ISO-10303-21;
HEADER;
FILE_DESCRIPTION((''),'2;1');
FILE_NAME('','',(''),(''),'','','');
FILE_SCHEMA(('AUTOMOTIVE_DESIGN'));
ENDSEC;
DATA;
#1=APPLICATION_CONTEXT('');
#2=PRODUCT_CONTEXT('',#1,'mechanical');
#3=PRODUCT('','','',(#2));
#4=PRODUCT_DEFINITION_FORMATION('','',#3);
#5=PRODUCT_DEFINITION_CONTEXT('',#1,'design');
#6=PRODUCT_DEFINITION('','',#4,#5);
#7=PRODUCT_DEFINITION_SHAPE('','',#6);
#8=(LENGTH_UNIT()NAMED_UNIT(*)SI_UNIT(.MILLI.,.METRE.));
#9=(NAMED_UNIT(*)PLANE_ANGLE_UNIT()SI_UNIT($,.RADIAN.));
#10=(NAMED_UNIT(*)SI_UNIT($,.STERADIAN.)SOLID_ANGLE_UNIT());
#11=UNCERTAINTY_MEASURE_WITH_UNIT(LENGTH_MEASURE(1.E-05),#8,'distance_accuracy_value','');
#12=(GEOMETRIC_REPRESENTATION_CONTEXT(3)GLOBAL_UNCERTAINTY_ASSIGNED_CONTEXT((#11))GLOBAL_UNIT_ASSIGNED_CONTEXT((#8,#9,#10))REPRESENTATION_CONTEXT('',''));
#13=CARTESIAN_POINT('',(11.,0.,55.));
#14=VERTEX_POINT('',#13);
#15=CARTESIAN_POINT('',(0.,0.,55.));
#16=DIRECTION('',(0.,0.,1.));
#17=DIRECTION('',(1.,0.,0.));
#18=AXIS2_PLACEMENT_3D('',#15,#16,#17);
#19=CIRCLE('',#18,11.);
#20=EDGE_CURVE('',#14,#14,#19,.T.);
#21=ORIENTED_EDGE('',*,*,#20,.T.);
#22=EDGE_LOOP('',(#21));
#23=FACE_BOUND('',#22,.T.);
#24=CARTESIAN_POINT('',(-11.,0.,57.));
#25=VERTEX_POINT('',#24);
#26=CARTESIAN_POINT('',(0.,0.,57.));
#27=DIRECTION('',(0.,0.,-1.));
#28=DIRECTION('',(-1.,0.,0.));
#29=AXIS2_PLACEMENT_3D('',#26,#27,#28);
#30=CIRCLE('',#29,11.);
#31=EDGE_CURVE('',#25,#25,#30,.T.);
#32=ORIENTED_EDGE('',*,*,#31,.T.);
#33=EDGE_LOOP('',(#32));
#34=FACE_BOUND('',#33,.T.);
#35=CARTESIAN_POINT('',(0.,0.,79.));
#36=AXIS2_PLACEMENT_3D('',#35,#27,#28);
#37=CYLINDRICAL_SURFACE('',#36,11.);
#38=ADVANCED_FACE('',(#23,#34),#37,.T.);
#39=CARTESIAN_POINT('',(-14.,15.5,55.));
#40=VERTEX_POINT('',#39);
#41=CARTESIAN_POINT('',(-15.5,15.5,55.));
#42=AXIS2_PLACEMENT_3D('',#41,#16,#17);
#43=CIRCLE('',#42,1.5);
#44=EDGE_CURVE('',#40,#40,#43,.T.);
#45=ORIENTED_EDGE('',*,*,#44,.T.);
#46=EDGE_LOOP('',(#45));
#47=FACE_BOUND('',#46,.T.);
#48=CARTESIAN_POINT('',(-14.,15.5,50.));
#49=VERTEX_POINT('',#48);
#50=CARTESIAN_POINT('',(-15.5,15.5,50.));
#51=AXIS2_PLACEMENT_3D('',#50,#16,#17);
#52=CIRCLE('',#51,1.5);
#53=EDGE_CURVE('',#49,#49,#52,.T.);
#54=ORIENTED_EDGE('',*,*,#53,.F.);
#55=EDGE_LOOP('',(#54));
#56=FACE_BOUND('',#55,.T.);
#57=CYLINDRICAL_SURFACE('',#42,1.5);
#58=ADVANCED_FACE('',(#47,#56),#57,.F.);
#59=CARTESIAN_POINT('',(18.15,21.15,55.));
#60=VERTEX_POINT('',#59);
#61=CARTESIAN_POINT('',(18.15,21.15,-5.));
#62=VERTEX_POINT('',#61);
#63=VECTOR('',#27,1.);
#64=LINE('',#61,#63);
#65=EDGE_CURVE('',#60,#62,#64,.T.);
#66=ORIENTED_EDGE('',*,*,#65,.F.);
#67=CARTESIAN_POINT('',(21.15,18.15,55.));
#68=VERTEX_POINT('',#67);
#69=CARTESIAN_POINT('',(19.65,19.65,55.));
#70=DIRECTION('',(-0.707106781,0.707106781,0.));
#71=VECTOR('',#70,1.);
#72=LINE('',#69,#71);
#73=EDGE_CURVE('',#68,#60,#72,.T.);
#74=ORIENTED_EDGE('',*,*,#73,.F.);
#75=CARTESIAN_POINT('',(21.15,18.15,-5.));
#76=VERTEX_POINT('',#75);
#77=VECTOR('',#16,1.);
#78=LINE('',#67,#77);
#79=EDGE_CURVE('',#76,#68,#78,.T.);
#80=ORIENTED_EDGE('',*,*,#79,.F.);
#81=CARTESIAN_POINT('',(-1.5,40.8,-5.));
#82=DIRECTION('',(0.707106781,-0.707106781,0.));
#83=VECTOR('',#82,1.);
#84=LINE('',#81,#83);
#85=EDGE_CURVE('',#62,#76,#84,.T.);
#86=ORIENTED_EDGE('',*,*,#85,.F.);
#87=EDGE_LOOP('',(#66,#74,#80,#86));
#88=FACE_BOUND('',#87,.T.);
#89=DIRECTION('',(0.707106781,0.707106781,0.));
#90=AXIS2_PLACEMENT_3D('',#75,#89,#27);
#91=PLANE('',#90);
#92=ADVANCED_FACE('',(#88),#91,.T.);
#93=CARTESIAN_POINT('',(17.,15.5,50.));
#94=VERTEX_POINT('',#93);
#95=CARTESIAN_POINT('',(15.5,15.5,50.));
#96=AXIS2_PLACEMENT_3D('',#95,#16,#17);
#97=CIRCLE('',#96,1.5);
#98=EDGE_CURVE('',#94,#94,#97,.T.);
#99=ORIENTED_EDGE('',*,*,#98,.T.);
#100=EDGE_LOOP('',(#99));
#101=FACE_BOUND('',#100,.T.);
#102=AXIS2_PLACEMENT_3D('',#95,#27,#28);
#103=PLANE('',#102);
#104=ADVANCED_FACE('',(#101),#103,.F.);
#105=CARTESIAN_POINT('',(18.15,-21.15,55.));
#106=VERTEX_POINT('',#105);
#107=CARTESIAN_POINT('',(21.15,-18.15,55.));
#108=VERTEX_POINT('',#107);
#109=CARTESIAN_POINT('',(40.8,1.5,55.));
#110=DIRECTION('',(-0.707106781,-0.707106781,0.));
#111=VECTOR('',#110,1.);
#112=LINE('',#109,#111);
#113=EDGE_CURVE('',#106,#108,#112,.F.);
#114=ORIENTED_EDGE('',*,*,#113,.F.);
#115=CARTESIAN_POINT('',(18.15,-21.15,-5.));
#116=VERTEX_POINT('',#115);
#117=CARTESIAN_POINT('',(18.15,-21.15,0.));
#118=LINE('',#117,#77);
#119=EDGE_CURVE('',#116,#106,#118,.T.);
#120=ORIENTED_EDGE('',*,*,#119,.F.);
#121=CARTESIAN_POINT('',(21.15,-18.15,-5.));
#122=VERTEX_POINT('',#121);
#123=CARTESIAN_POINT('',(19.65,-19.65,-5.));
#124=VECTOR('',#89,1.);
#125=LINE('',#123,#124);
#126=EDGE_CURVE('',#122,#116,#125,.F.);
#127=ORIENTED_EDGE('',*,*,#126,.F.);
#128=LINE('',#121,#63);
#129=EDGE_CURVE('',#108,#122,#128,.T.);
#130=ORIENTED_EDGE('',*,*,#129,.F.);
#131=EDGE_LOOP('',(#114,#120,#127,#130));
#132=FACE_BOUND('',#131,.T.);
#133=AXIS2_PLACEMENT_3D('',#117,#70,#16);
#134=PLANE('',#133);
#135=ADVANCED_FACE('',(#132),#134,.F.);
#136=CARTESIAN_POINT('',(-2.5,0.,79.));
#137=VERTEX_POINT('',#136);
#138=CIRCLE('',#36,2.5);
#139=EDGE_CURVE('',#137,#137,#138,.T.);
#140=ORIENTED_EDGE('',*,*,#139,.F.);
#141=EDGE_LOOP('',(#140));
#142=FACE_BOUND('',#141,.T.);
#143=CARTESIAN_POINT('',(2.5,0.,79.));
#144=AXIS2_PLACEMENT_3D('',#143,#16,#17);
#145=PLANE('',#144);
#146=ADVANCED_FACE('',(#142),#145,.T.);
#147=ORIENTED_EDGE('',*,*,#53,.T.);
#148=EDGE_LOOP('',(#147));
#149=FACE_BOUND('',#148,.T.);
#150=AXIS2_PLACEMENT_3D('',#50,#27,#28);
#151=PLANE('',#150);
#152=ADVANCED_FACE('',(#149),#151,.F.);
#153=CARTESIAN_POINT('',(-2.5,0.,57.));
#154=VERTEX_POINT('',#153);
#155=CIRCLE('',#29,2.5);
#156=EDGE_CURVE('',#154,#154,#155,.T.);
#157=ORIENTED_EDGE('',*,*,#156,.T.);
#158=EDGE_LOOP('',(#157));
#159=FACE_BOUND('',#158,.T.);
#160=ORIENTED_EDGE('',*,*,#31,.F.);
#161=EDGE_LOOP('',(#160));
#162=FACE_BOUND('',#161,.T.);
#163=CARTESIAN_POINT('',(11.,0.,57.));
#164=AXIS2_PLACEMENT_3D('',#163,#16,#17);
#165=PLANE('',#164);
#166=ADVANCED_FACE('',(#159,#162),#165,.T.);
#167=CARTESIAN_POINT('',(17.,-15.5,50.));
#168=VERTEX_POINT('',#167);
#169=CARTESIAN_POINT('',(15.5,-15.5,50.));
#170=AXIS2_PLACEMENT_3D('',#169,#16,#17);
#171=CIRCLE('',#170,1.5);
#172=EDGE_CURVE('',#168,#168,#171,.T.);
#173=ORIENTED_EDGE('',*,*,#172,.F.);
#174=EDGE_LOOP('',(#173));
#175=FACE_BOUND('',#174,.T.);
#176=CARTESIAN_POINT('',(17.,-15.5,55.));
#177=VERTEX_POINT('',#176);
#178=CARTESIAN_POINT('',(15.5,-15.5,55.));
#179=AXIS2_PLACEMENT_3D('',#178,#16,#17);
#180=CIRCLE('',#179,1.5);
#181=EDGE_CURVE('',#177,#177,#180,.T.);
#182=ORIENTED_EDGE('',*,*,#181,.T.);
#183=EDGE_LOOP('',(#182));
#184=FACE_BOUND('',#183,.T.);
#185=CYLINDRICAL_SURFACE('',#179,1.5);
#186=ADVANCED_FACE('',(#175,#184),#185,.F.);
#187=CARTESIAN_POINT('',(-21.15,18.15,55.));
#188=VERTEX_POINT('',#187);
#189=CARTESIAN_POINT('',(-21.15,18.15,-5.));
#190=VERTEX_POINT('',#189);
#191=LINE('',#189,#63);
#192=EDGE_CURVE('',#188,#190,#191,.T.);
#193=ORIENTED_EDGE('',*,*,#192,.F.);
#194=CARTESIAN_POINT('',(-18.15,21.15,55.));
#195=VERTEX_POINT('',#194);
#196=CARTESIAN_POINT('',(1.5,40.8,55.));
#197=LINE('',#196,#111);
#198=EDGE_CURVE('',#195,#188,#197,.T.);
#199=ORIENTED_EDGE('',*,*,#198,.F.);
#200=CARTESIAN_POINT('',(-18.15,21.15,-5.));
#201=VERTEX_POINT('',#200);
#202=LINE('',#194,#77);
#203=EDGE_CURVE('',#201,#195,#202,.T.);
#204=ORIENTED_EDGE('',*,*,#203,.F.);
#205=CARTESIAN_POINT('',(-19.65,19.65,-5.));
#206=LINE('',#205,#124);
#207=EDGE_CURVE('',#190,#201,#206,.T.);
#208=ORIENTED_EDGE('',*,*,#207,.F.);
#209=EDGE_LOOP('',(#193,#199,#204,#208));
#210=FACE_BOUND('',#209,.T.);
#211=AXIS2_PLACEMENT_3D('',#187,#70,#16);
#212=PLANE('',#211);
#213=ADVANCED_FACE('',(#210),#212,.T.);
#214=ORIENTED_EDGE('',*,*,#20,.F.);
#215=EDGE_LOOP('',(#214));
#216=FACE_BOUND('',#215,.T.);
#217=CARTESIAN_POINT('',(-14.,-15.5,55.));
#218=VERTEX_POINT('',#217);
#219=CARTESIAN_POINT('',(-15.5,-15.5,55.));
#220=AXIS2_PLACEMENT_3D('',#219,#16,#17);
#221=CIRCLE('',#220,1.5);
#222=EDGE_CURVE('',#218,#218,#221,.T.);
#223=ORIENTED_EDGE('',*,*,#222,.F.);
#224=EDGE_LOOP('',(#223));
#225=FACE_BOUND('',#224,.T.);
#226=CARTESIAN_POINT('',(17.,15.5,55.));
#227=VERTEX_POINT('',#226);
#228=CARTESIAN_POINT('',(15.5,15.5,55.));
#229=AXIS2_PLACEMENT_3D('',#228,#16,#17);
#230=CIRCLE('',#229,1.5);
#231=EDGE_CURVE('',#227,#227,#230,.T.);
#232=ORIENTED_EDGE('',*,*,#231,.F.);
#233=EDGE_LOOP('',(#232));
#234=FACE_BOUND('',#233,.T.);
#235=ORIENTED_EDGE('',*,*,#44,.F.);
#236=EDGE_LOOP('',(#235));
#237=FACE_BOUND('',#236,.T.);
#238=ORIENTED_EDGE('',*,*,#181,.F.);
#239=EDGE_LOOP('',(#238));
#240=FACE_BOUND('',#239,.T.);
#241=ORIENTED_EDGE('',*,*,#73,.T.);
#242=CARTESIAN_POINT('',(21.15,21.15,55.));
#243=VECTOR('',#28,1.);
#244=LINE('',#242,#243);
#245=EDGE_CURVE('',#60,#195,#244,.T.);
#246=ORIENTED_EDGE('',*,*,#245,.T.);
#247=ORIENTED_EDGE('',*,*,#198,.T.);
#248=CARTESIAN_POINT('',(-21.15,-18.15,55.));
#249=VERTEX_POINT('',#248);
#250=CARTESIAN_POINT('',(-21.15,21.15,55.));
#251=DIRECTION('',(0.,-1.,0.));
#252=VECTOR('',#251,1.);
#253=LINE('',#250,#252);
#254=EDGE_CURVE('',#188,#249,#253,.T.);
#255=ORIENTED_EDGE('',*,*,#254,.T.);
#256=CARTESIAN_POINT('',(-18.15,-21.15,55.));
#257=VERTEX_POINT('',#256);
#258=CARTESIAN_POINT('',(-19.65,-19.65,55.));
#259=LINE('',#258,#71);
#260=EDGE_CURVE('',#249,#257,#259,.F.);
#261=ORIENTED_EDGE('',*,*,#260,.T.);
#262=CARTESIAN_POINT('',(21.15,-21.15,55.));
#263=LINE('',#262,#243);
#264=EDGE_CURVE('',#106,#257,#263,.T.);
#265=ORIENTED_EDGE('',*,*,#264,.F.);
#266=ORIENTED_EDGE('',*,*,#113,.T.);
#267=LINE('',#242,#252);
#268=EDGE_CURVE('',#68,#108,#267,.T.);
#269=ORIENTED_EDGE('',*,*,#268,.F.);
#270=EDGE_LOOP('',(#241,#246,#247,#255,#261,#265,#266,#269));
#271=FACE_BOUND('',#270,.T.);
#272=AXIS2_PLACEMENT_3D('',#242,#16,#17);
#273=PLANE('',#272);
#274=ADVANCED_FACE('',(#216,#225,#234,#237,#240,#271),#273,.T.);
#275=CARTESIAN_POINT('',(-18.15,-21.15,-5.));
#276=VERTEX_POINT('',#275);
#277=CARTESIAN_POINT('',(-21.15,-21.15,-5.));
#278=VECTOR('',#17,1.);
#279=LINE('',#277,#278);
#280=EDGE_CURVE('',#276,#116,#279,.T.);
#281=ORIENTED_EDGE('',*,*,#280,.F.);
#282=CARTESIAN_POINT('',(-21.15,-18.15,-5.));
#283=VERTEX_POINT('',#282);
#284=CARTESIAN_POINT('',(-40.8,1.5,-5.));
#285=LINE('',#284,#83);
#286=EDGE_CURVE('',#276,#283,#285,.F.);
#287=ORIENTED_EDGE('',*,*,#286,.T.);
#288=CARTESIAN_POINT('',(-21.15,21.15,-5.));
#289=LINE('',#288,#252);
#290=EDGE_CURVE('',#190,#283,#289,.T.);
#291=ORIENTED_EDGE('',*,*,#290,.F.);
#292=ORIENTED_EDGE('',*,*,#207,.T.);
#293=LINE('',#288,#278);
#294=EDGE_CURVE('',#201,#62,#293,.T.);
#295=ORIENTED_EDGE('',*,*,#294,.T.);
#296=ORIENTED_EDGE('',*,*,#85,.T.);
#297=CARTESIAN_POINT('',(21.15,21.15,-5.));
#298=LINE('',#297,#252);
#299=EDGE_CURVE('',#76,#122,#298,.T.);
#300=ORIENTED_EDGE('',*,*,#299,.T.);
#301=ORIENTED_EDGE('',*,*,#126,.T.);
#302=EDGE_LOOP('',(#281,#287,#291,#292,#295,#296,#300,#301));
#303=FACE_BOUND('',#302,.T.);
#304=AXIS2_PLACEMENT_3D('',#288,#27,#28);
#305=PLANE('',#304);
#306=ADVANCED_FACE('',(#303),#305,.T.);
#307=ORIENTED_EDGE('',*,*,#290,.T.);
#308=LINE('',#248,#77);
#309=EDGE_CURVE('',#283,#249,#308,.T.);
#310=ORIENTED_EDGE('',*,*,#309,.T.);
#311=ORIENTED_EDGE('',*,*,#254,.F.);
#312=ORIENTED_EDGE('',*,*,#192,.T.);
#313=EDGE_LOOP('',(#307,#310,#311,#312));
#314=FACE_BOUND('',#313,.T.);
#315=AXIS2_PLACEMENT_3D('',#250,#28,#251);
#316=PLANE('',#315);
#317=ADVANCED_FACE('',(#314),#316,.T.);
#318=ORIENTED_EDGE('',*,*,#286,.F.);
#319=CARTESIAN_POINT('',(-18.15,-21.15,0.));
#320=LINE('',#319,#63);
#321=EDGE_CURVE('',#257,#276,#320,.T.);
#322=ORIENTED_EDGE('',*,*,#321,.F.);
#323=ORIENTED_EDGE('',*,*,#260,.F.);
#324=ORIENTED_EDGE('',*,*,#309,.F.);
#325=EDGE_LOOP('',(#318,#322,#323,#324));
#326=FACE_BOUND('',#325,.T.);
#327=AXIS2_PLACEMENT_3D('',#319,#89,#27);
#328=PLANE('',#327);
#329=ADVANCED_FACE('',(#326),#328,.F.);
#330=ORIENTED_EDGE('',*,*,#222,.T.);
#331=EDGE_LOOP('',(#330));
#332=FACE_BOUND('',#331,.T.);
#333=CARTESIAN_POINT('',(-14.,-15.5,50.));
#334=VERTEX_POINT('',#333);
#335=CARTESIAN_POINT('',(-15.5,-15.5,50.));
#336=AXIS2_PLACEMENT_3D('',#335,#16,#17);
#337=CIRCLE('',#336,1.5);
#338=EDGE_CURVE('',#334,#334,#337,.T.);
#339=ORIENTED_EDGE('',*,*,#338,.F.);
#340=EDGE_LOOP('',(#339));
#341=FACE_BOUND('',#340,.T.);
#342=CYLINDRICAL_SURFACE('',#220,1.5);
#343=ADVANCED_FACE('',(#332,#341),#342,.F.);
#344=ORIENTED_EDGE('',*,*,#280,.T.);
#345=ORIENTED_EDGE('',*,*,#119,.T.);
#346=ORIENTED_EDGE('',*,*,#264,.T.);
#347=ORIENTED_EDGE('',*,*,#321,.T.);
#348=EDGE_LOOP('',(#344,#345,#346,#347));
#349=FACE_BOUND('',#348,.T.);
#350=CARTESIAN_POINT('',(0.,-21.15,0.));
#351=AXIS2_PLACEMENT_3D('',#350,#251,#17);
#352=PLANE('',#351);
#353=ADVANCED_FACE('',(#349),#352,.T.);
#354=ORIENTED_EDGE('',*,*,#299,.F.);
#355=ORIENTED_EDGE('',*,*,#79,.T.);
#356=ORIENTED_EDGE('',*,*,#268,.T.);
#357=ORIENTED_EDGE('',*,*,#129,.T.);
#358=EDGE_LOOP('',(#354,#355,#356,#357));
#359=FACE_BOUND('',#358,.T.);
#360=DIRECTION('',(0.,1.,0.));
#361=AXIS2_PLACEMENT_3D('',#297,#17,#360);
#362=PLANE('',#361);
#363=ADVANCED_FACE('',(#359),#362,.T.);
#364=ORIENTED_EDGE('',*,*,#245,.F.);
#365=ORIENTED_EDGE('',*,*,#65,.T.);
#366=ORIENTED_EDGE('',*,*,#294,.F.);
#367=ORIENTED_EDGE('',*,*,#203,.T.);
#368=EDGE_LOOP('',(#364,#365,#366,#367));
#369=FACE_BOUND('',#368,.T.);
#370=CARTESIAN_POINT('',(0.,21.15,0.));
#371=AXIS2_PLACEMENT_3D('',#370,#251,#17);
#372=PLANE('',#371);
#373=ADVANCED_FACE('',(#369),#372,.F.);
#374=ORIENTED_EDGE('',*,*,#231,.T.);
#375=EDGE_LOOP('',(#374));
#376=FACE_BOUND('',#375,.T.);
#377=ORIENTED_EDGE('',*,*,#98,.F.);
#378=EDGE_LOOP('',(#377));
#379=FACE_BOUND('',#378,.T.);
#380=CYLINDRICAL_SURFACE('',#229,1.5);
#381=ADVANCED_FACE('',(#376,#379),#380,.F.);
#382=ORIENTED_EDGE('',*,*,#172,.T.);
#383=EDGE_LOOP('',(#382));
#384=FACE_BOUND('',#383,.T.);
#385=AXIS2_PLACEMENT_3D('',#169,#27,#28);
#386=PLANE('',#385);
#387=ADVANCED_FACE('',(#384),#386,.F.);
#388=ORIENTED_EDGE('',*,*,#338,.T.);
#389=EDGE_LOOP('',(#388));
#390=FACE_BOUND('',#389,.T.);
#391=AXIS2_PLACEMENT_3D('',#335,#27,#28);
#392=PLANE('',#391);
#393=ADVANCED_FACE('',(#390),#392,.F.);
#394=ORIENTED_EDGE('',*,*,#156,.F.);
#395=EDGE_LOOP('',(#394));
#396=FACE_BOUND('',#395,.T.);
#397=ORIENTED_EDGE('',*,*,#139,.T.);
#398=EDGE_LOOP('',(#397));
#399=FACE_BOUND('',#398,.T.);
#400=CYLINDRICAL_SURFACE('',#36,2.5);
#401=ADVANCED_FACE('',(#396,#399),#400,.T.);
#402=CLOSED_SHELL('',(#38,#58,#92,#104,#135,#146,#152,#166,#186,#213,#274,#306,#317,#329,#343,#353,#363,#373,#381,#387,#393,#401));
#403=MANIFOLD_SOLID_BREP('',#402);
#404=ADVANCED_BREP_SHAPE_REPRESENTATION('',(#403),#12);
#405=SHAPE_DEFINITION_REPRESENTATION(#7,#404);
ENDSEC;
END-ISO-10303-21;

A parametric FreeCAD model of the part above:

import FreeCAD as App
import Part
import Sketcher
from FreeCAD import Vector


def edges_at(feature, points):
    """Names of the edges that pass closest to the given points."""
    edges = feature.Shape.Edges
    near = lambda p: min(range(len(edges)), key=lambda i: edges[i].distToShape(Part.Vertex(*p))[0])
    return sorted({f"Edge{near(p) + 1}" for p in points})


def add_polygon(sketch, points):
    """Adds a closed chain of lines whose ends are joined by coincident constraints."""
    first, n = sketch.GeometryCount, len(points)
    for a, b in zip(points, points[1:] + points[:1]):
        sketch.addGeometry(Part.LineSegment(App.Vector(*a, 0), App.Vector(*b, 0)), False)
    for i in range(n):
        sketch.addConstraint(Sketcher.Constraint("Coincident", first + i, 2, first + (i + 1) % n, 1))

doc = App.newDocument("Part")
body = doc.addObject("PartDesign::Body", "Body")

sketch1 = body.newObject("Sketcher::SketchObject", "Sketch")
sketch1.AttachmentSupport = (doc.getObject("XZ_Plane"), [""])
sketch1.MapMode = "FlatFace"
sketch1.AttachmentOffset = App.Placement(Vector(0, 0, 21.15), App.Rotation())
add_polygon(sketch1, [(-21, 55), (-21, -5), (21, -5), (21, 55)])
sketch1.addConstraint(Sketcher.Constraint("Vertical", 0))
sketch1.addConstraint(Sketcher.Constraint("Horizontal", 1))
sketch1.addConstraint(Sketcher.Constraint("Vertical", 2))
sketch1.addConstraint(Sketcher.Constraint("Horizontal", 3))
sketch1.addConstraint(Sketcher.Constraint("DistanceY", 0, 2, 0, 1, 60.0))
sketch1.addConstraint(Sketcher.Constraint("DistanceX", 1, 1, 1, 2, 42.3))
sketch1.addConstraint(Sketcher.Constraint("DistanceY", 0, 2, -1, 1, 5.0))
sketch1.addConstraint(Sketcher.Constraint("DistanceX", 0, 2, -1, 1, 21.15))
pad1 = body.newObject("PartDesign::Pad", "Pad")
pad1.Profile = sketch1
pad1.Length = 42.3
pad1.Reversed = True

sketch2 = body.newObject("Sketcher::SketchObject", "Sketch001")
sketch2.AttachmentSupport = (doc.getObject("XZ_Plane"), [""])
sketch2.MapMode = "FlatFace"
add_polygon(sketch2, [(2.5, 79), (0, 79), (0, 55), (11, 55), (11, 57), (2.5, 57)])
sketch2.addConstraint(Sketcher.Constraint("Horizontal", 0))
sketch2.addConstraint(Sketcher.Constraint("Vertical", 1))
sketch2.addConstraint(Sketcher.Constraint("Horizontal", 2))
sketch2.addConstraint(Sketcher.Constraint("Vertical", 3))
sketch2.addConstraint(Sketcher.Constraint("Horizontal", 4))
sketch2.addConstraint(Sketcher.Constraint("Vertical", 5))
sketch2.addConstraint(Sketcher.Constraint("PointOnObject", 0, 2, -2))
sketch2.addConstraint(Sketcher.Constraint("DistanceX", 2, 1, 2, 2, 11.0))
sketch2.addConstraint(Sketcher.Constraint("DistanceY", 1, 2, 1, 1, 24.0))
sketch2.addConstraint(Sketcher.Constraint("DistanceY", 3, 1, 3, 2, 2.0))
sketch2.addConstraint(Sketcher.Constraint("DistanceX", 0, 2, 0, 1, 2.5))
sketch2.addConstraint(Sketcher.Constraint("DistanceY", -1, 1, 0, 2, 79.0))
revolution = body.newObject("PartDesign::Revolution", "Revolution")
revolution.Profile = sketch2
revolution.ReferenceAxis = (sketch2, ["V_Axis"])
revolution.Angle = 360

sketch3 = body.newObject("Sketcher::SketchObject", "Sketch002")
sketch3.AttachmentSupport = (doc.getObject("XY_Plane"), [""])
sketch3.MapMode = "FlatFace"
sketch3.AttachmentOffset = App.Placement(Vector(0, 0, 55), App.Rotation())
sketch3.addGeometry(Part.Circle(Vector(15.5, -15.5, 0), Vector(0, 0, 1), 1.5), False)
sketch3.addGeometry(Part.Circle(Vector(-15.5, -15.5, 0), Vector(0, 0, 1), 1.5), False)
sketch3.addGeometry(Part.Circle(Vector(-15.5, 15.5, 0), Vector(0, 0, 1), 1.5), False)
sketch3.addGeometry(Part.Circle(Vector(15.5, 15.5, 0), Vector(0, 0, 1), 1.5), False)
sketch3.addConstraint(Sketcher.Constraint("Equal", 0, 1))
sketch3.addConstraint(Sketcher.Constraint("Equal", 1, 2))
sketch3.addConstraint(Sketcher.Constraint("Equal", 2, 3))
sketch3.addConstraint(Sketcher.Constraint("Symmetric", 0, 3, 2, 3, -1, 1))
sketch3.addConstraint(Sketcher.Constraint("Symmetric", 1, 3, 3, 3, -1, 1))
sketch3.addConstraint(Sketcher.Constraint("Symmetric", 0, 3, 1, 3, -2))
sketch3.addConstraint(Sketcher.Constraint("Diameter", 0, 3.0))
sketch3.addConstraint(Sketcher.Constraint("DistanceX", 1, 3, 0, 3, 31.0))
sketch3.addConstraint(Sketcher.Constraint("DistanceY", 1, 3, 2, 3, 31.0))
doc.recompute()
hole = body.newObject("PartDesign::Hole", "Hole")
hole.Profile = sketch3
hole.ThreadType = "None"
hole.Diameter = 3
hole.DepthType = "Dimension"
hole.Depth = 5
hole.DrillPoint = "Flat"
doc.recompute()

chamfer = body.newObject("PartDesign::Chamfer", "Chamfer")
chamfer.Base = (hole, edges_at(hole, [
    (-21.15, 21.15, 25),
    (21.15, 21.15, 25),
    (-21.15, -21.15, 25),
    (21.15, -21.15, 25),
]))
chamfer.Size = 3

doc.recompute()
